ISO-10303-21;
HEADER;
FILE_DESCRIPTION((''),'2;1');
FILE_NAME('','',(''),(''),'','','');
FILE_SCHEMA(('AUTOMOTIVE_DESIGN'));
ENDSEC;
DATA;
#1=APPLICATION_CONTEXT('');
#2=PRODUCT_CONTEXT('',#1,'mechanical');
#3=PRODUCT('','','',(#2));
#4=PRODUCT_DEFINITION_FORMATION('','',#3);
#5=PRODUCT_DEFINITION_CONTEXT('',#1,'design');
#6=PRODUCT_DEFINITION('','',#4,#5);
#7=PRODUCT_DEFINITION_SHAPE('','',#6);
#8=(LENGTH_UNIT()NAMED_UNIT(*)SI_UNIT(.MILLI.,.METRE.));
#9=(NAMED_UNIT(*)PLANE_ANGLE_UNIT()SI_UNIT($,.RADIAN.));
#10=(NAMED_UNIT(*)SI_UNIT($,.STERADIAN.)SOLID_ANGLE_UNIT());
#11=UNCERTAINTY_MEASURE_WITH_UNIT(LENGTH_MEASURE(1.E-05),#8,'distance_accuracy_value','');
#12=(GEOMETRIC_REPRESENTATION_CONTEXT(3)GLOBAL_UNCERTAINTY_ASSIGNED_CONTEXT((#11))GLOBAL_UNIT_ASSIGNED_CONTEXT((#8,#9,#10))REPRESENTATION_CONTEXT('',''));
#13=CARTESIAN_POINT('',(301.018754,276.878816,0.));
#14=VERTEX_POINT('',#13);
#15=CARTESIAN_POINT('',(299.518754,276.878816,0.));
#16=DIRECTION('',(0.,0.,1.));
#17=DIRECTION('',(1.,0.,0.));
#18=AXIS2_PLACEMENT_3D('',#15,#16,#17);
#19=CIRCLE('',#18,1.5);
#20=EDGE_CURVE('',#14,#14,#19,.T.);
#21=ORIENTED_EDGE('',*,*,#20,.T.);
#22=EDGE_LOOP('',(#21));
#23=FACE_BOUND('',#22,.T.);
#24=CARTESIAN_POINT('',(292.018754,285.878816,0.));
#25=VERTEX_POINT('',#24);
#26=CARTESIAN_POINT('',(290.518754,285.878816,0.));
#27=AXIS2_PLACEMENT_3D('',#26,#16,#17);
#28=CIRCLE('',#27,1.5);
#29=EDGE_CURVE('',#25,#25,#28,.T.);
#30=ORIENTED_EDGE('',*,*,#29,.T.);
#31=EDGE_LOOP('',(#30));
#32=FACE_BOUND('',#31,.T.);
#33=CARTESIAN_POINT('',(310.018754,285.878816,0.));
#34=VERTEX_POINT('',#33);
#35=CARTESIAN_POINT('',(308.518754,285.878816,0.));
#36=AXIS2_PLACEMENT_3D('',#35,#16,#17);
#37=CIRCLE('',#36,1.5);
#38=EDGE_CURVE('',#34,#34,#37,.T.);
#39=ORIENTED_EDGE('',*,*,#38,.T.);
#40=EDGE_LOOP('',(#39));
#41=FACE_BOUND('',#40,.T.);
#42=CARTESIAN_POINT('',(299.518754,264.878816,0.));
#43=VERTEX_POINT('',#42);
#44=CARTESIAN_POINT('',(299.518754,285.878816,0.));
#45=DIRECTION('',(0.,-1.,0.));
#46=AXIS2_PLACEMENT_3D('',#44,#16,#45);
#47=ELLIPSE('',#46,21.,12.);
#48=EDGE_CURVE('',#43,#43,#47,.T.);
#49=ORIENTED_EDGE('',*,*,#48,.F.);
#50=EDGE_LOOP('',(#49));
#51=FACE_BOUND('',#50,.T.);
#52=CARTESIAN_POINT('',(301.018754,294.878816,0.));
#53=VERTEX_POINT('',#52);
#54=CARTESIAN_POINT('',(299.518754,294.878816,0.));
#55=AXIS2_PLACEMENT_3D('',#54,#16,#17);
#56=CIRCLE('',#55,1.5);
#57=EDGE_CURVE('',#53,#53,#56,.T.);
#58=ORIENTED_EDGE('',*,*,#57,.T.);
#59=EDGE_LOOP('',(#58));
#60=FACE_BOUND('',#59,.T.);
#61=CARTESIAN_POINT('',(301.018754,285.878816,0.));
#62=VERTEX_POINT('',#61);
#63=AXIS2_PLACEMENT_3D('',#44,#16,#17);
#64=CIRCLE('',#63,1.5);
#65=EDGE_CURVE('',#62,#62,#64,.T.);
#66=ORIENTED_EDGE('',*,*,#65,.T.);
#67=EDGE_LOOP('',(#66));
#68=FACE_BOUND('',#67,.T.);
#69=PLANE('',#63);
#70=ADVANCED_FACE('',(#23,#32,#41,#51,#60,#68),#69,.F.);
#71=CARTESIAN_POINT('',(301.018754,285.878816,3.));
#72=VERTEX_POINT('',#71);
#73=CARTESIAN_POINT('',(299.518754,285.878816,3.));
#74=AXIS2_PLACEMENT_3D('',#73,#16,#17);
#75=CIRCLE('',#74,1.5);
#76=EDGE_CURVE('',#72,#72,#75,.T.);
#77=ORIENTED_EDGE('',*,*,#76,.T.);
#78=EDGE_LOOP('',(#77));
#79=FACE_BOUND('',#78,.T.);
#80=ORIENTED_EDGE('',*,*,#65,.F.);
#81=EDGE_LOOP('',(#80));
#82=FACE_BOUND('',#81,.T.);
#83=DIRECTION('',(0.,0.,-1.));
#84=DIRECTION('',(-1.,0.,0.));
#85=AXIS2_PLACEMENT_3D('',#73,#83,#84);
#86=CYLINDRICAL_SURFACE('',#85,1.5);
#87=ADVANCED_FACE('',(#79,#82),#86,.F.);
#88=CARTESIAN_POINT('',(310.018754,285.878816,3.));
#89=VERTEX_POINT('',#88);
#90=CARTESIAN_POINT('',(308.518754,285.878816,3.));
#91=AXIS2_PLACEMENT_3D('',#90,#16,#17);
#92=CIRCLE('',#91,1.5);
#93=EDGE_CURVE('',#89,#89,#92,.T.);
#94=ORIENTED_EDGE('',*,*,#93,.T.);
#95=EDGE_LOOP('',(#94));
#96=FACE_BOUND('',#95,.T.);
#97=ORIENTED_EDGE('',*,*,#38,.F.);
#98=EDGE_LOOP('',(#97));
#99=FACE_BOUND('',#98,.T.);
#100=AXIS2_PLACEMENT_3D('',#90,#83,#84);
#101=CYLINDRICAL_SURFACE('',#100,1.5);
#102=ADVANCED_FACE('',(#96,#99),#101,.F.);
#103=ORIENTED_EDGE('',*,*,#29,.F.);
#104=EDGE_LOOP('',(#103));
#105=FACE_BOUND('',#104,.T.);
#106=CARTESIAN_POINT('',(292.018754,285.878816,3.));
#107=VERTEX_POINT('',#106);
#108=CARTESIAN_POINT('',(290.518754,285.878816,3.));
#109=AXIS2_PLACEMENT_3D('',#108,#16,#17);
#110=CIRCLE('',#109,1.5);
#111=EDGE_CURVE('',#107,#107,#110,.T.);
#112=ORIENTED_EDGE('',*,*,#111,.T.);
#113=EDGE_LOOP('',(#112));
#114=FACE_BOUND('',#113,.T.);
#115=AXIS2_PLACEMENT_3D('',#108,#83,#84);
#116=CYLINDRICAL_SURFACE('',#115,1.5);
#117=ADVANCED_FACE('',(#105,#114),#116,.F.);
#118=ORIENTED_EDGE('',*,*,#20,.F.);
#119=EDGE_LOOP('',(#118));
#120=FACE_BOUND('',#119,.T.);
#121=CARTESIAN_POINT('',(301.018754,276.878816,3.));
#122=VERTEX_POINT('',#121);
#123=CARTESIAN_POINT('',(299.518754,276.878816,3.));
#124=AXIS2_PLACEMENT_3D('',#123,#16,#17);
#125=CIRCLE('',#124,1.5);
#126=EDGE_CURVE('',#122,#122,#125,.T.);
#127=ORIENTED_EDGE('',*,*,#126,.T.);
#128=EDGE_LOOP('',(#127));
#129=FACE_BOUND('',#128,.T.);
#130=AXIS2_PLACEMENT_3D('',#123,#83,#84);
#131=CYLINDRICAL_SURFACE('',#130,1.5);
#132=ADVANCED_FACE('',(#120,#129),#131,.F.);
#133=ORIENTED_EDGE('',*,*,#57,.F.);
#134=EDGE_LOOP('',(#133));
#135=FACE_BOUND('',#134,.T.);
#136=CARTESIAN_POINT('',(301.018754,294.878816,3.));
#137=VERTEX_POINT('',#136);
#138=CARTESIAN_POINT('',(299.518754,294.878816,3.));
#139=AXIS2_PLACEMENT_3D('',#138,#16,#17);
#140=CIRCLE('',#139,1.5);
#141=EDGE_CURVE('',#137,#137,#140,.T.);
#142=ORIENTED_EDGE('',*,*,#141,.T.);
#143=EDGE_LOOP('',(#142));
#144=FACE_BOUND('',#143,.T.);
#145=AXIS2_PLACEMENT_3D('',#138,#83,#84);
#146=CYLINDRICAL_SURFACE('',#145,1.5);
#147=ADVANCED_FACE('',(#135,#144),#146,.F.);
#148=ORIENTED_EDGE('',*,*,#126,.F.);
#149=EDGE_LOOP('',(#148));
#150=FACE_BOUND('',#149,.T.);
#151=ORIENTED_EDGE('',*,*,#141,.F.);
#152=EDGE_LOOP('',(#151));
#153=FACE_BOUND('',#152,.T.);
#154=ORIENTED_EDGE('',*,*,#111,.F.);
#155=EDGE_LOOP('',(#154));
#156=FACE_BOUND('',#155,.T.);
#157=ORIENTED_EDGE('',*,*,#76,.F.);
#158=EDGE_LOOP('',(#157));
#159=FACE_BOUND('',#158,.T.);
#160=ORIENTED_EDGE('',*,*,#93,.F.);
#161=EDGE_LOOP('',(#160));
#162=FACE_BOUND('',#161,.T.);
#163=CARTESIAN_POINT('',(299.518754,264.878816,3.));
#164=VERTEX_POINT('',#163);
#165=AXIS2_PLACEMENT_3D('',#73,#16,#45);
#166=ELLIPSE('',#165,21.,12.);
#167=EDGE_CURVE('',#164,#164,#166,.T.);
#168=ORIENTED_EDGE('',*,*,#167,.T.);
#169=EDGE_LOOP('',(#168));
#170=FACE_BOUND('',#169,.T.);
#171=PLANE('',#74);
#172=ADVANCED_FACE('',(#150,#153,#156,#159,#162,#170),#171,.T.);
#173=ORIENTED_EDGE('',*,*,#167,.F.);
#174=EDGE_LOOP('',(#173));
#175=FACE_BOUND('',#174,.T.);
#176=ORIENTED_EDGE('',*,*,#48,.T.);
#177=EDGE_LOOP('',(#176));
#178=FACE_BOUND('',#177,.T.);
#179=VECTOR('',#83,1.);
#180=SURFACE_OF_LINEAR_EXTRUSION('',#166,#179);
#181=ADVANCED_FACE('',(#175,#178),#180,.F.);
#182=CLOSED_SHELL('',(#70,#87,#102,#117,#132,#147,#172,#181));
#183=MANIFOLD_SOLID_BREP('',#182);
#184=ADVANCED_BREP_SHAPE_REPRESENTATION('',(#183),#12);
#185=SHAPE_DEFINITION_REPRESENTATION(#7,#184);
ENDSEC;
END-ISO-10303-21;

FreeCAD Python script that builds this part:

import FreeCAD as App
import Part
import Sketcher
from FreeCAD import Vector

doc = App.newDocument("Part")
body = doc.addObject("PartDesign::Body", "Body")

# Sketch on XY plane
sketch1 = body.newObject("Sketcher::SketchObject", "Sketch")
sketch1.AttachmentSupport = (doc.getObject("XY_Plane"), [""])
sketch1.MapMode = "FlatFace"
sketch1.addGeometry([
    Part.Ellipse(Vector(299.518754, 264.878816, 0), Vector(311.518754, 285.878816, 0), Vector(299.518754, 285.878816, 0)),  # 0
    Part.Circle(Vector(299.518754, 294.878816, 0), Vector(0, 0, 1), 1.5),  # 1
    Part.Circle(Vector(290.518754, 285.878816, 0), Vector(0, 0, 1), 1.5),  # 2
    Part.Circle(Vector(299.518754, 285.878816, 0), Vector(0, 0, 1), 1.5),  # 3
    Part.Circle(Vector(299.518754, 276.878816, 0), Vector(0, 0, 1), 1.5),  # 4
    Part.Circle(Vector(308.518754, 285.878816, 0), Vector(0, 0, 1), 1.5),  # 5
], False)
sketch1.addConstraint([
    Sketcher.Constraint("Block", 0),
    Sketcher.Constraint("Equal", 1, 2),
    Sketcher.Constraint("Equal", 2, 3),
    Sketcher.Constraint("Equal", 3, 4),
    Sketcher.Constraint("Equal", 4, 5),
    Sketcher.Constraint("Horizontal", 2, 3, 3, 3),
    Sketcher.Constraint("Horizontal", 3, 3, 5, 3),
    Sketcher.Constraint("Vertical", 1, 3, 3, 3),
    Sketcher.Constraint("Vertical", 3, 3, 4, 3),
    Sketcher.Constraint("Diameter", 1, 3.0),
    Sketcher.Constraint("DistanceX", 2, 3, 1, 3, 9.0),
    Sketcher.Constraint("DistanceY", 2, 3, 1, 3, 9.0),
    Sketcher.Constraint("DistanceY", 4, 3, 3, 3, 9.0),
    Sketcher.Constraint("DistanceX", 3, 3, 5, 3, 9.0),
    Sketcher.Constraint("DistanceX", -1, 1, 1, 3, 299.518754),
    Sketcher.Constraint("DistanceY", -1, 1, 1, 3, 294.878816),
])
pad1 = body.newObject("PartDesign::Pad", "Pad")
pad1.Profile = sketch1
pad1.Length = 3

doc.recompute()
